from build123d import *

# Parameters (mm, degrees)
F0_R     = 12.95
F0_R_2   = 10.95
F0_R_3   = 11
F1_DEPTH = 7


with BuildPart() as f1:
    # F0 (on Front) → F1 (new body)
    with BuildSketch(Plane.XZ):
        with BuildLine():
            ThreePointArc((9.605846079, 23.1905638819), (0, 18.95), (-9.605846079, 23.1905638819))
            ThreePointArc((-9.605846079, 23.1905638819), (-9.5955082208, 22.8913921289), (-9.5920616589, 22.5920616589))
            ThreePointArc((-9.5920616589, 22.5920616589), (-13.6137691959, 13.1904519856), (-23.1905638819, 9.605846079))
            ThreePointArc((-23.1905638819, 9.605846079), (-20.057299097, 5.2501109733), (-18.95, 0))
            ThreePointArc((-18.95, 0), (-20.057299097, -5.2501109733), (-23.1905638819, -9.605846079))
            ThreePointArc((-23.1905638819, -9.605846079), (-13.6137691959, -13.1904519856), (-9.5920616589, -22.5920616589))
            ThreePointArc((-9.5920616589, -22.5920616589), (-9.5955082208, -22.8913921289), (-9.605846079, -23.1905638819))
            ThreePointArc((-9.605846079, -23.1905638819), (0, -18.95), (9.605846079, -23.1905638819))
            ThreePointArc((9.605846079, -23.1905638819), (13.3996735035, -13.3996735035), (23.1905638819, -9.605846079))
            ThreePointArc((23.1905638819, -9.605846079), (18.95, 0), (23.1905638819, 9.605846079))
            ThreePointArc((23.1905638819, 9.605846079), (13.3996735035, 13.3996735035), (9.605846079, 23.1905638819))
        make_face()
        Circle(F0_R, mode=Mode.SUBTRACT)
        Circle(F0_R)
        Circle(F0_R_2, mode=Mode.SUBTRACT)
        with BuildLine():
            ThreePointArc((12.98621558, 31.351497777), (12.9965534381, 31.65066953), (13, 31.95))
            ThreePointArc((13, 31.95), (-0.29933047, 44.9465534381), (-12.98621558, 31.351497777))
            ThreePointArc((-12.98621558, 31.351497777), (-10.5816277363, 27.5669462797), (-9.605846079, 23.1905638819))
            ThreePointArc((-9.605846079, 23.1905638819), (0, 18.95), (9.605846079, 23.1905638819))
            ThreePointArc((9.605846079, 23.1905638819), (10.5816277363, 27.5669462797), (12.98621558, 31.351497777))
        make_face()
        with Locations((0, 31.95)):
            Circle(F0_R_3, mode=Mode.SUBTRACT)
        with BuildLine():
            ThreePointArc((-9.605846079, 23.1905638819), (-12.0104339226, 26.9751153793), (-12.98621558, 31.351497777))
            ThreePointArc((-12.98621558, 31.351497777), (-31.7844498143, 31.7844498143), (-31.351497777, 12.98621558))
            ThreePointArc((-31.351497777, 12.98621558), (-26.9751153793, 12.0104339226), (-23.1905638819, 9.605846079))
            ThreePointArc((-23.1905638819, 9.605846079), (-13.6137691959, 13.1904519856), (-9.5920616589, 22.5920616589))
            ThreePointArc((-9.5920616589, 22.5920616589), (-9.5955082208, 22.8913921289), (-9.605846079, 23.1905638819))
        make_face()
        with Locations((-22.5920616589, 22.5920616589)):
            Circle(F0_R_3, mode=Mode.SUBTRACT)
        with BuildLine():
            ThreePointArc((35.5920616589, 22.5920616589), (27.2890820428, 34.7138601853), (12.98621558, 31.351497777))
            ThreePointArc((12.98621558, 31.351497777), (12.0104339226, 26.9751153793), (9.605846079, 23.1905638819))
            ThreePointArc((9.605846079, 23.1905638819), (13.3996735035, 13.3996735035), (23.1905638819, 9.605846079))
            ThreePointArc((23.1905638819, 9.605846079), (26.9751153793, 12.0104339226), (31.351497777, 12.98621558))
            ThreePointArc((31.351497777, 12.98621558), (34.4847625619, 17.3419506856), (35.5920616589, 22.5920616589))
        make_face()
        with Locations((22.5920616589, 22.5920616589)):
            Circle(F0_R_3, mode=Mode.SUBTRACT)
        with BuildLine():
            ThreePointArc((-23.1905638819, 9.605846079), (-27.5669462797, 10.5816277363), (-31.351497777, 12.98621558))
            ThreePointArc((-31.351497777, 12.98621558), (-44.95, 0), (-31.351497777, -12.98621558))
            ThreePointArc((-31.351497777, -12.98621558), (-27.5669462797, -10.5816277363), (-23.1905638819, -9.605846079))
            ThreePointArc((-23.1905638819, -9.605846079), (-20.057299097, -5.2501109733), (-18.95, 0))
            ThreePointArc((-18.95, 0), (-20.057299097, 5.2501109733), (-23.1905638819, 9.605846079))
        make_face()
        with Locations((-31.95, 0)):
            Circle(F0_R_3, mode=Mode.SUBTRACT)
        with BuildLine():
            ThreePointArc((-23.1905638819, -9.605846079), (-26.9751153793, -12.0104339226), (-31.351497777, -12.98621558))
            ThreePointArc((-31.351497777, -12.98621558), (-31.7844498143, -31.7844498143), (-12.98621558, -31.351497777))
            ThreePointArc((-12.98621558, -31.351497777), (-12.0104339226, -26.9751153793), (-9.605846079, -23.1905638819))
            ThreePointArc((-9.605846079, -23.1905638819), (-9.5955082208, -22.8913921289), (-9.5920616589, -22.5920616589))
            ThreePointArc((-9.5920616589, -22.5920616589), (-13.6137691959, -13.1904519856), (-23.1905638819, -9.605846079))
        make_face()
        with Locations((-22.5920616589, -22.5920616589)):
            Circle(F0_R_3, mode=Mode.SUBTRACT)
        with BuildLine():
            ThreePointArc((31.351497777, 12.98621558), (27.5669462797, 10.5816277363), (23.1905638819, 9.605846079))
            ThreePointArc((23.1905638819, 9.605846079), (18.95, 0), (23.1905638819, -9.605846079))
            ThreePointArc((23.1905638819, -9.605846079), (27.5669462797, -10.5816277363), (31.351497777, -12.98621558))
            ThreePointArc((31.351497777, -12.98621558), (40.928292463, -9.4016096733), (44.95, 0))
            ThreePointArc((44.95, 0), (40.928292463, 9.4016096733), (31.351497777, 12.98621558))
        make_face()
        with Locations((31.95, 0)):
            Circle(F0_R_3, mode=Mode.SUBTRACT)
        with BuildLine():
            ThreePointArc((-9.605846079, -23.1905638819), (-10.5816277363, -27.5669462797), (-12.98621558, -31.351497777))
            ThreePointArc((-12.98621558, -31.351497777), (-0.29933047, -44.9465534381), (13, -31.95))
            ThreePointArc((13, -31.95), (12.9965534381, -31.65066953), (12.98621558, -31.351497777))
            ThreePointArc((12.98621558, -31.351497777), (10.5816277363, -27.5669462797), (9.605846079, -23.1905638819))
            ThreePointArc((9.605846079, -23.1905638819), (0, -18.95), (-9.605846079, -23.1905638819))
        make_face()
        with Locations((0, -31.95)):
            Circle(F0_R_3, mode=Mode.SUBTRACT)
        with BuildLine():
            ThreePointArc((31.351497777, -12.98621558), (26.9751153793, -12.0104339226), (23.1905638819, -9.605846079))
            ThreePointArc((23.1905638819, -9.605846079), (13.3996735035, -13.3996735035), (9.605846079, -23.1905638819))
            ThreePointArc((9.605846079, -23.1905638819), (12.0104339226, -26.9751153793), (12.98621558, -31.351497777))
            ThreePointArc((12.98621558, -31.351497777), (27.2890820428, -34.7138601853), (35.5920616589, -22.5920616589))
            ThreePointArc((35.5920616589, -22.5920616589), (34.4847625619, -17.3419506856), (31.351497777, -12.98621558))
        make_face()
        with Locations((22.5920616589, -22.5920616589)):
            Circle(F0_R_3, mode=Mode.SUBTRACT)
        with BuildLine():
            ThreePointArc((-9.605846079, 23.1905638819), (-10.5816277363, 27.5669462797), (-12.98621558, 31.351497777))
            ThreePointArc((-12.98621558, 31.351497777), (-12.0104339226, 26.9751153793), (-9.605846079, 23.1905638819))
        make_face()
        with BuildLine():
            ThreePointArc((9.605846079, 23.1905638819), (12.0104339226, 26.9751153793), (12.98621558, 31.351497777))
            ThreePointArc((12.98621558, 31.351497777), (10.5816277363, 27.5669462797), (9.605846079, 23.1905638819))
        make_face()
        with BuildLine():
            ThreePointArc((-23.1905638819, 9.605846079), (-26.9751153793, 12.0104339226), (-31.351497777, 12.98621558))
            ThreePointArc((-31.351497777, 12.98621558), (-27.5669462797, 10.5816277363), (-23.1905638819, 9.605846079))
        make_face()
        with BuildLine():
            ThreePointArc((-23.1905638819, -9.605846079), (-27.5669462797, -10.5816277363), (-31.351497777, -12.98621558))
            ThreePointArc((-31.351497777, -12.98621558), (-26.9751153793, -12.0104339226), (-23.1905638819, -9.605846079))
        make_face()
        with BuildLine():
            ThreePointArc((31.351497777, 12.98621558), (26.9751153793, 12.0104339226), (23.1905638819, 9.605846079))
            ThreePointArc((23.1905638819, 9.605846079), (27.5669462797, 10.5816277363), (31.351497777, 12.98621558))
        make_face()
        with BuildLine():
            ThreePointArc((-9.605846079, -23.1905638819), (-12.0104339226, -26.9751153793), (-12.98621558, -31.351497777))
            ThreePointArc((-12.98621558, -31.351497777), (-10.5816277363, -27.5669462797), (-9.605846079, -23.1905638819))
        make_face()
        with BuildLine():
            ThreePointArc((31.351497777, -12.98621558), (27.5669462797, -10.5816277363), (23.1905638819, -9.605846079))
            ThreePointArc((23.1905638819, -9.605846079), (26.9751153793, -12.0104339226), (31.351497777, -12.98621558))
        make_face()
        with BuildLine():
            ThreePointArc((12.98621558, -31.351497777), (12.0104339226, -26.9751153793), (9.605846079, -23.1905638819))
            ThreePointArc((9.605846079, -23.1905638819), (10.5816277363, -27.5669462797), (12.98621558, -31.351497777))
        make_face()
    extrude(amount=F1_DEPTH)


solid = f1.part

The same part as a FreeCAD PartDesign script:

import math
import FreeCAD as App
import Part
import Sketcher

V = App.Vector

doc = App.newDocument("Part")
body = doc.addObject("PartDesign::Body", "Body")

sketch1 = body.newObject("Sketcher::SketchObject", "Sketch")
sketch1.AttachmentSupport = (doc.getObject("XZ_Plane"), [""])
sketch1.MapMode = "FlatFace"
sketch1.addGeometry([
    Part.ArcOfCircle(Part.Circle(V(0, -31.95, 0), V(0, 0, 1), 13), math.radians(0), math.radians(2.638752)),
    Part.ArcOfCircle(Part.Circle(V(22.592062, -22.592062, 0), V(0, 0, 1), 13), math.radians(-137.638752), math.radians(0)),
    Part.ArcOfCircle(Part.Circle(V(22.592062, -22.592062, 0), V(0, 0, 1), 13), math.radians(0), math.radians(47.638752)),
    Part.ArcOfCircle(Part.Circle(V(31.95, 0, 0), V(0, 0, 1), 13), math.radians(-92.638752), math.radians(0)),
    Part.ArcOfCircle(Part.Circle(V(31.95, 0, 0), V(0, 0, 1), 13), math.radians(0), math.radians(92.638752)),
    Part.ArcOfCircle(Part.Circle(V(22.592062, 22.592062, 0), V(0, 0, 1), 13), math.radians(-47.638752), math.radians(0)),
    Part.ArcOfCircle(Part.Circle(V(22.592062, 22.592062, 0), V(0, 0, 1), 13), math.radians(0), math.radians(137.638752)),
    Part.ArcOfCircle(Part.Circle(V(0, 31.95, 0), V(0, 0, 1), 13), math.radians(-2.638752), math.radians(0)),
    Part.ArcOfCircle(Part.Circle(V(0, 31.95, 0), V(0, 0, 1), 13), math.radians(0), math.radians(182.638752)),
    Part.ArcOfCircle(Part.Circle(V(-22.592062, 22.592062, 0), V(0, 0, 1), 13), math.radians(42.361248), math.radians(227.638752)),
    Part.ArcOfCircle(Part.Circle(V(-31.95, 0, 0), V(0, 0, 1), 13), math.radians(87.361248), math.radians(272.638752)),
    Part.ArcOfCircle(Part.Circle(V(-22.592062, -22.592062, 0), V(0, 0, 1), 13), math.radians(132.361248), math.radians(317.638752)),
    Part.ArcOfCircle(Part.Circle(V(0, -31.95, 0), V(0, 0, 1), 13), math.radians(177.361248), math.radians(360)),
    Part.Circle(V(-22.592062, -22.592062, 0), V(0, 0, 1), 11),
    Part.Circle(V(0, -31.95, 0), V(0, 0, 1), 11),
    Part.Circle(V(22.592062, -22.592062, 0), V(0, 0, 1), 11),
    Part.Circle(V(-31.95, 0, 0), V(0, 0, 1), 11),
    Part.Circle(V(-22.592062, 22.592062, 0), V(0, 0, 1), 11),
    Part.Circle(V(0, 0, 0), V(0, 0, 1), 10.95),
    Part.Circle(V(31.95, 0, 0), V(0, 0, 1), 11),
    Part.Circle(V(0, 31.95, 0), V(0, 0, 1), 11),
    Part.Circle(V(22.592062, 22.592062, 0), V(0, 0, 1), 11),
], False)
sketch1.addConstraint([
    Sketcher.Constraint("Coincident", 0, 2, 1, 1),
    Sketcher.Constraint("Tangent", 1, 2, 2, 1),
    Sketcher.Constraint("Coincident", 2, 2, 3, 1),
    Sketcher.Constraint("Tangent", 3, 2, 4, 1),
    Sketcher.Constraint("Coincident", 4, 2, 5, 1),
    Sketcher.Constraint("Tangent", 5, 2, 6, 1),
    Sketcher.Constraint("Coincident", 6, 2, 7, 1),
    Sketcher.Constraint("Tangent", 7, 2, 8, 1),
    Sketcher.Constraint("Coincident", 8, 2, 9, 1),
    Sketcher.Constraint("Coincident", 9, 2, 10, 1),
    Sketcher.Constraint("Coincident", 10, 2, 11, 1),
    Sketcher.Constraint("Coincident", 11, 2, 12, 1),
    Sketcher.Constraint("Tangent", 12, 2, 0, 1),
    Sketcher.Constraint("Coincident", 18, 3, -1, 1),
    Sketcher.Constraint("Coincident", 13, 3, 11, 3),
    Sketcher.Constraint("Coincident", 14, 3, 0, 3),
    Sketcher.Constraint("Coincident", 15, 3, 1, 3),
    Sketcher.Constraint("Coincident", 16, 3, 10, 3),
    Sketcher.Constraint("Coincident", 17, 3, 9, 3),
    Sketcher.Constraint("Coincident", 19, 3, 3, 3),
    Sketcher.Constraint("Coincident", 20, 3, 7, 3),
    Sketcher.Constraint("Coincident", 21, 3, 5, 3),
    Sketcher.Constraint("Equal", 0, 1),
    Sketcher.Constraint("Equal", 1, 2),
    Sketcher.Constraint("Equal", 2, 3),
    Sketcher.Constraint("Equal", 3, 4),
    Sketcher.Constraint("Equal", 4, 5),
    Sketcher.Constraint("Equal", 5, 6),
    Sketcher.Constraint("Equal", 6, 7),
    Sketcher.Constraint("Equal", 7, 8),
    Sketcher.Constraint("Equal", 8, 9),
    Sketcher.Constraint("Equal", 9, 10),
    Sketcher.Constraint("Equal", 10, 11),
    Sketcher.Constraint("Equal", 11, 12),
    Sketcher.Constraint("Equal", 13, 14),
    Sketcher.Constraint("Equal", 14, 15),
    Sketcher.Constraint("Equal", 15, 16),
    Sketcher.Constraint("Equal", 16, 17),
    Sketcher.Constraint("Equal", 17, 19),
    Sketcher.Constraint("Equal", 19, 20),
    Sketcher.Constraint("Equal", 20, 21),
    Sketcher.Constraint("Symmetric", 0, 3, 7, 3, -1, 1),
    Sketcher.Constraint("Symmetric", 1, 3, 9, 3, -1, 1),
    Sketcher.Constraint("Symmetric", 3, 3, 10, 3, -1, 1),
    Sketcher.Constraint("Symmetric", 5, 3, 11, 3, -1, 1),
    Sketcher.Constraint("Symmetric", 5, 3, 9, 3, -2),
    Sketcher.Constraint("Symmetric", 7, 2, 12, 2, -1),
    Sketcher.Constraint("PointOnObject", 3, 3, -1),
    Sketcher.Constraint("PointOnObject", 3, 2, -1),
    Sketcher.Constraint("Horizontal", 15, 3, 1, 2),
    Sketcher.Constraint("Horizontal", 21, 3, 5, 2),
    Sketcher.Constraint("Horizontal", 20, 3, 7, 2),
    Sketcher.Constraint("Diameter", 13, 22.0),
    Sketcher.Constraint("Radius", 0, 13.0),
    Sketcher.Constraint("Diameter", 18, 21.9),
    Sketcher.Constraint("DistanceY", 0, 3, -1, 1, 31.95),
    Sketcher.Constraint("DistanceX", -1, 1, 3, 3, 31.95),
    Sketcher.Constraint("DistanceX", -1, 1, 1, 3, 22.592062),
    Sketcher.Constraint("DistanceY", 1, 3, -1, 1, 22.592062),
])
pad1 = body.newObject("PartDesign::Pad", "Pad")
pad1.Profile = sketch1
pad1.Length = 7

doc.recompute()
